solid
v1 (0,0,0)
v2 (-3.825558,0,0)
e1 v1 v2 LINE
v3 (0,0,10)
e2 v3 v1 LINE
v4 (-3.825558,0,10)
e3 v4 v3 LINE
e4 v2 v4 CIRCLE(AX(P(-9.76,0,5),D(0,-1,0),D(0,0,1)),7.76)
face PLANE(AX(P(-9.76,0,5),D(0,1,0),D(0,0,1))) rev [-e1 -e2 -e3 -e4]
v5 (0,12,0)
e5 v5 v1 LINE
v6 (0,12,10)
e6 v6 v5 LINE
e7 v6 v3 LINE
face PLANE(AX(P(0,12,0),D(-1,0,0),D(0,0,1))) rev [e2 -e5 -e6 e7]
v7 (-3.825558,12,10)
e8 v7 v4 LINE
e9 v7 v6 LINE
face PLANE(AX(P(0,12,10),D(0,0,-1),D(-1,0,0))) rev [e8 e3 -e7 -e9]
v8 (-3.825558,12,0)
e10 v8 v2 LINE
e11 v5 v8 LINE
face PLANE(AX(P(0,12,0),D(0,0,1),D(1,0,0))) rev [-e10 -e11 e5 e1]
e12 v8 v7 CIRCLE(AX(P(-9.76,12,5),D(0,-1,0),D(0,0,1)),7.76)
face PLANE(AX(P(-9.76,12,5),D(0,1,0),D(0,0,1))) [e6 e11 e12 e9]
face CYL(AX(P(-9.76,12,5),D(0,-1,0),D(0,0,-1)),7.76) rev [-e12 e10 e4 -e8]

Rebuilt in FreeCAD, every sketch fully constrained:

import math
import FreeCAD as App
import Part
import Sketcher
from FreeCAD import Vector

doc = App.newDocument("Part")
body = doc.addObject("PartDesign::Body", "Body")

# Sketch on XZ plane
sketch1 = body.newObject("Sketcher::SketchObject", "Sketch")
sketch1.AttachmentSupport = (doc.getObject("XZ_Plane"), [""])
sketch1.MapMode = "FlatFace"
sketch1.addGeometry([
    Part.LineSegment(Vector(0, 10, 0), Vector(0, 0, 0)),
    Part.LineSegment(Vector(0, 0, 0), Vector(-3.8, 0, 0)),
    Part.ArcOfCircle(Part.Circle(Vector(-9.8, 5, 0), Vector(0, 0, 1), 7.8), math.radians(-40), math.radians(40)),
    Part.LineSegment(Vector(-3.8, 10, 0), Vector(0, 10, 0)),
], False)
sketch1.addConstraint([
    Sketcher.Constraint("Coincident", 0, 2, 1, 1),
    Sketcher.Constraint("Coincident", 1, 2, 2, 1),
    Sketcher.Constraint("Coincident", 2, 2, 3, 1),
    Sketcher.Constraint("Coincident", 3, 2, 0, 1),
    Sketcher.Constraint("Vertical", 0),
    Sketcher.Constraint("Horizontal", 1),
    Sketcher.Constraint("Horizontal", 3),
    Sketcher.Constraint("Coincident", 0, 2, -1, 1),
    Sketcher.Constraint("Vertical", 1, 2, 2, 2),
    Sketcher.Constraint("DistanceY", 0, 2, 0, 1, 10.0),
    Sketcher.Constraint("Radius", 2, 7.76),
    Sketcher.Constraint("DistanceX", 2, 3, -1, 1, 9.76),
])
pad1 = body.newObject("PartDesign::Pad", "Pad")
pad1.Profile = sketch1
pad1.Length = 12
pad1.Reversed = True

doc.recompute()
